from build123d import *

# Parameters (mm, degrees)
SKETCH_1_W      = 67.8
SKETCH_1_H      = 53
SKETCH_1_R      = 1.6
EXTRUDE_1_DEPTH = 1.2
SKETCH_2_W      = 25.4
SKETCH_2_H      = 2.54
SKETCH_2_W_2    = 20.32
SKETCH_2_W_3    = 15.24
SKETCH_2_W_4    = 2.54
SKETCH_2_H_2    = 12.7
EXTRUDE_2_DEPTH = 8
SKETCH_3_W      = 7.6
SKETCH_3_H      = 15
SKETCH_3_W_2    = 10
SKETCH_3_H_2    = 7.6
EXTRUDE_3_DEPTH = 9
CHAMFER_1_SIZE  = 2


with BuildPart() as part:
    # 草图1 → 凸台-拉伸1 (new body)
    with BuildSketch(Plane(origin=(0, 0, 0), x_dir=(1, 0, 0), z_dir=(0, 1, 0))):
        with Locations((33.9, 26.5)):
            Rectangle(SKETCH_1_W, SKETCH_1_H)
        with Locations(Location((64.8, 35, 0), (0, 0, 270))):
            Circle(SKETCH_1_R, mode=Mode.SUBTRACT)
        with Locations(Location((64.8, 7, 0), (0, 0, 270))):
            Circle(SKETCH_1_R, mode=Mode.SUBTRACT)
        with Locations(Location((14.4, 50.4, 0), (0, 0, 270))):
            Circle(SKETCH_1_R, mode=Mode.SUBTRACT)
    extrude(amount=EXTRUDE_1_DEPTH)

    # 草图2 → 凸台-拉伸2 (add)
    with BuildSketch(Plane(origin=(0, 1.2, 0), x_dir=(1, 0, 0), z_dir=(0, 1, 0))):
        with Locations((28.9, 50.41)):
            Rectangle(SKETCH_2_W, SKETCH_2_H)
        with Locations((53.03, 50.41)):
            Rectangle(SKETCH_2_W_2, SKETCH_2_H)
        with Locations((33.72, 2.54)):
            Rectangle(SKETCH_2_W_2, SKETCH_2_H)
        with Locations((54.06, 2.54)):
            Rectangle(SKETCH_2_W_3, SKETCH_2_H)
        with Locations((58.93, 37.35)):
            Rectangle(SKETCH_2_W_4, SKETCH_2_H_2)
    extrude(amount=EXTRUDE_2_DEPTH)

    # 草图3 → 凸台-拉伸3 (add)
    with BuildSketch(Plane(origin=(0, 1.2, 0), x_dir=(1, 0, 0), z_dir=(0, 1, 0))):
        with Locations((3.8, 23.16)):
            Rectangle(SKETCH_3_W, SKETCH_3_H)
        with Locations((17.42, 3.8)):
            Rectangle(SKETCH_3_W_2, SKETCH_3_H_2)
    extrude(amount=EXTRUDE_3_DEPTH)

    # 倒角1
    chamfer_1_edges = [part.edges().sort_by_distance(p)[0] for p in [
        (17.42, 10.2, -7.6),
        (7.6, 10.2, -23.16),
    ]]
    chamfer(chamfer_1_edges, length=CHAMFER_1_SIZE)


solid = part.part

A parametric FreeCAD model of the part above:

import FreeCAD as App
import Part
import Sketcher
from FreeCAD import Vector


def edges_at(feature, points):
    """Names of the edges that pass closest to the given points."""
    edges = feature.Shape.Edges
    near = lambda p: min(range(len(edges)), key=lambda i: edges[i].distToShape(Part.Vertex(*p))[0])
    return sorted({f"Edge{near(p) + 1}" for p in points})


def add_polygon(sketch, points):
    """Adds a closed chain of lines whose ends are joined by coincident constraints."""
    first, n = sketch.GeometryCount, len(points)
    for a, b in zip(points, points[1:] + points[:1]):
        sketch.addGeometry(Part.LineSegment(App.Vector(*a, 0), App.Vector(*b, 0)), False)
    for i in range(n):
        sketch.addConstraint(Sketcher.Constraint("Coincident", first + i, 2, first + (i + 1) % n, 1))

doc = App.newDocument("Part")
params = doc.addObject("Spreadsheet::Sheet", "Params")
for row, (alias, value) in enumerate([
    ("sketch1_diameter", "3.2 mm"),
    ("sketch1_height", "53 mm"),
    ("sketch1_width", "67.8 mm"),
    ("pad1_length", "1.2 mm"),
    ("sketch2_width", "25.4 mm"),
    ("sketch2_height", "12.7 mm"),
    ("sketch2_width2", "20.32 mm"),
    ("sketch2_width3", "15.24 mm"),
    ("sketch2_width4", "2.54 mm"),
    ("pad2_length", "8 mm"),
    ("sketch3_width", "10 mm"),
    ("sketch3_height", "15 mm"),
    ("sketch3_width2", "7.6 mm"),
    ("pad3_length", "9 mm"),
    ("chamfer_size", "2 mm"),
], start=1):
    params.set(f"A{row}", alias)
    params.set(f"B{row}", "=" + value)
    params.setAlias(f"B{row}", alias)

body = doc.addObject("PartDesign::Body", "Body")

sketch1 = body.newObject("Sketcher::SketchObject", "Sketch")
sketch1.AttachmentSupport = (doc.getObject("XZ_Plane"), [""])
sketch1.MapMode = "FlatFace"
add_polygon(sketch1, [(0, -53), (0, 0), (67.8, 0), (67.8, -53)])
sketch1.addGeometry(Part.Circle(Vector(64.8, -7, 0), Vector(0, 0, 1), 1.6), False)
sketch1.addGeometry(Part.Circle(Vector(14.4, -50.4, 0), Vector(0, 0, 1), 1.6), False)
sketch1.addGeometry(Part.Circle(Vector(64.8, -35, 0), Vector(0, 0, 1), 1.6), False)
sketch1.addConstraint([
    Sketcher.Constraint("Vertical", 0),
    Sketcher.Constraint("Horizontal", 1),
    Sketcher.Constraint("Vertical", 2),
    Sketcher.Constraint("Horizontal", 3),
    Sketcher.Constraint("Coincident", 0, 2, -1, 1),
    Sketcher.Constraint("Equal", 4, 5),
    Sketcher.Constraint("Equal", 5, 6),
    Sketcher.Constraint("Vertical", 4, 3, 6, 3),
    Sketcher.Constraint("Diameter", 4, 3.2),
    Sketcher.Constraint("DistanceY", 0, 1, 0, 2, 53.0),
    Sketcher.Constraint("DistanceX", 1, 1, 1, 2, 67.8),
    Sketcher.Constraint("DistanceY", 4, 3, -1, 1, 7.0),
    Sketcher.Constraint("DistanceY", 6, 3, -1, 1, 35.0),
    Sketcher.Constraint("DistanceX", 4, 3, 1, 2, 3.0),
    Sketcher.Constraint("DistanceX", -1, 1, 5, 3, 14.4),
    Sketcher.Constraint("DistanceY", 5, 3, -1, 1, 50.4),
])
sketch1.setExpression("Constraints[12]", "Params.sketch1_diameter")
sketch1.setExpression("Constraints[13]", "Params.sketch1_height")
sketch1.setExpression("Constraints[14]", "Params.sketch1_width")
pad1 = body.newObject("PartDesign::Pad", "Pad")
pad1.Profile = sketch1
pad1.setExpression("Length", "Params.pad1_length")
pad1.Reversed = True

sketch2 = body.newObject("Sketcher::SketchObject", "Sketch001")
sketch2.AttachmentSupport = (doc.getObject("XZ_Plane"), [""])
sketch2.MapMode = "FlatFace"
sketch2.AttachmentOffset = App.Placement(Vector(0, 0, -1.2), App.Rotation())
add_polygon(sketch2, [(16.2, -51.7), (16.2, -49.1), (41.6, -49.1), (41.6, -51.7)])
add_polygon(sketch2, [(42.9, -51.7), (42.9, -49.1), (63.2, -49.1), (63.2, -51.7)])
add_polygon(sketch2, [(23.6, -3.8), (23.6, -1.3), (43.9, -1.3), (43.9, -3.8)])
add_polygon(sketch2, [(46.4, -3.8), (46.4, -1.3), (61.7, -1.3), (61.7, -3.8)])
add_polygon(sketch2, [(57.7, -43.7), (57.7, -31), (60.2, -31), (60.2, -43.7)])
sketch2.addConstraint([
    Sketcher.Constraint("Vertical", 0),
    Sketcher.Constraint("Horizontal", 1),
    Sketcher.Constraint("Vertical", 2),
    Sketcher.Constraint("Horizontal", 3),
    Sketcher.Constraint("Vertical", 4),
    Sketcher.Constraint("Horizontal", 5),
    Sketcher.Constraint("Vertical", 6),
    Sketcher.Constraint("Horizontal", 7),
    Sketcher.Constraint("Vertical", 8),
    Sketcher.Constraint("Horizontal", 9),
    Sketcher.Constraint("Vertical", 10),
    Sketcher.Constraint("Horizontal", 11),
    Sketcher.Constraint("Vertical", 12),
    Sketcher.Constraint("Horizontal", 13),
    Sketcher.Constraint("Vertical", 14),
    Sketcher.Constraint("Horizontal", 15),
    Sketcher.Constraint("Vertical", 16),
    Sketcher.Constraint("Horizontal", 17),
    Sketcher.Constraint("Vertical", 18),
    Sketcher.Constraint("Horizontal", 19),
    Sketcher.Constraint("Horizontal", 1, 2, 4, 2),
    Sketcher.Constraint("Horizontal", 3, 2, 6, 2),
    Sketcher.Constraint("Horizontal", 9, 2, 12, 2),
    Sketcher.Constraint("Horizontal", 11, 2, 14, 2),
    Sketcher.Constraint("Equal", 7, 9),
    Sketcher.Constraint("Equal", 19, 0),
    Sketcher.Constraint("Equal", 6, 8),
    Sketcher.Constraint("DistanceX", 1, 1, 1, 2, 25.4),
    Sketcher.Constraint("DistanceY", 16, 1, 16, 2, 12.7),
    Sketcher.Constraint("DistanceY", 16, 2, -1, 1, 31.0),
    Sketcher.Constraint("DistanceX", 5, 1, 5, 2, 20.32),
    Sketcher.Constraint("DistanceX", 13, 1, 13, 2, 15.24),
    Sketcher.Constraint("DistanceX", 17, 1, 17, 2, 2.54),
    Sketcher.Constraint("DistanceX", -1, 1, 0, 2, 16.2),
    Sketcher.Constraint("DistanceX", -1, 1, 17, 2, 60.2),
    Sketcher.Constraint("DistanceX", 9, 2, 13, 2, 17.8),
    Sketcher.Constraint("DistanceY", 0, 2, -1, 1, 49.14),
    Sketcher.Constraint("DistanceX", -1, 1, 4, 2, 42.87),
    Sketcher.Constraint("DistanceX", -1, 1, 8, 2, 23.56),
    Sketcher.Constraint("DistanceY", 8, 2, -1, 1, 1.27),
])
sketch2.setExpression("Constraints[47]", "Params.sketch2_width")
sketch2.setExpression("Constraints[48]", "Params.sketch2_height")
sketch2.setExpression("Constraints[50]", "Params.sketch2_width2")
sketch2.setExpression("Constraints[51]", "Params.sketch2_width3")
sketch2.setExpression("Constraints[52]", "Params.sketch2_width4")
pad2 = body.newObject("PartDesign::Pad", "Pad001")
pad2.Profile = sketch2
pad2.setExpression("Length", "Params.pad2_length")
pad2.Reversed = True

sketch3 = body.newObject("Sketcher::SketchObject", "Sketch002")
sketch3.AttachmentSupport = (doc.getObject("XZ_Plane"), [""])
sketch3.MapMode = "FlatFace"
sketch3.AttachmentOffset = App.Placement(Vector(0, 0, -1.2), App.Rotation())
add_polygon(sketch3, [(0, -31), (0, -16), (8, -16), (8, -31)])
add_polygon(sketch3, [(12, -8), (12, 0), (22, 0), (22, -8)])
sketch3.addConstraint([
    Sketcher.Constraint("Vertical", 0),
    Sketcher.Constraint("Horizontal", 1),
    Sketcher.Constraint("Vertical", 2),
    Sketcher.Constraint("Horizontal", 3),
    Sketcher.Constraint("Vertical", 4),
    Sketcher.Constraint("Horizontal", 5),
    Sketcher.Constraint("Vertical", 6),
    Sketcher.Constraint("Horizontal", 7),
    Sketcher.Constraint("PointOnObject", 0, 2, -2),
    Sketcher.Constraint("PointOnObject", 4, 2, -1),
    Sketcher.Constraint("Equal", 3, 4),
    Sketcher.Constraint("DistanceX", 5, 1, 5, 2, 10.0),
    Sketcher.Constraint("DistanceY", 0, 1, 0, 2, 15.0),
    Sketcher.Constraint("DistanceX", 1, 1, 1, 2, 7.6),
    Sketcher.Constraint("DistanceY", 0, 2, -1, 1, 15.66),
    Sketcher.Constraint("DistanceX", -1, 1, 4, 2, 12.42),
])
sketch3.setExpression("Constraints[19]", "Params.sketch3_width")
sketch3.setExpression("Constraints[20]", "Params.sketch3_height")
sketch3.setExpression("Constraints[21]", "Params.sketch3_width2")
pad3 = body.newObject("PartDesign::Pad", "Pad002")
pad3.Profile = sketch3
pad3.setExpression("Length", "Params.pad3_length")
pad3.Reversed = True
doc.recompute()

chamfer = body.newObject("PartDesign::Chamfer", "Chamfer")
chamfer.Base = (pad3, edges_at(pad3, [(17.42, 10.2, -7.6), (7.6, 10.2, -23.16)]))
chamfer.setExpression("Size", "Params.chamfer_size")

doc.recompute()
